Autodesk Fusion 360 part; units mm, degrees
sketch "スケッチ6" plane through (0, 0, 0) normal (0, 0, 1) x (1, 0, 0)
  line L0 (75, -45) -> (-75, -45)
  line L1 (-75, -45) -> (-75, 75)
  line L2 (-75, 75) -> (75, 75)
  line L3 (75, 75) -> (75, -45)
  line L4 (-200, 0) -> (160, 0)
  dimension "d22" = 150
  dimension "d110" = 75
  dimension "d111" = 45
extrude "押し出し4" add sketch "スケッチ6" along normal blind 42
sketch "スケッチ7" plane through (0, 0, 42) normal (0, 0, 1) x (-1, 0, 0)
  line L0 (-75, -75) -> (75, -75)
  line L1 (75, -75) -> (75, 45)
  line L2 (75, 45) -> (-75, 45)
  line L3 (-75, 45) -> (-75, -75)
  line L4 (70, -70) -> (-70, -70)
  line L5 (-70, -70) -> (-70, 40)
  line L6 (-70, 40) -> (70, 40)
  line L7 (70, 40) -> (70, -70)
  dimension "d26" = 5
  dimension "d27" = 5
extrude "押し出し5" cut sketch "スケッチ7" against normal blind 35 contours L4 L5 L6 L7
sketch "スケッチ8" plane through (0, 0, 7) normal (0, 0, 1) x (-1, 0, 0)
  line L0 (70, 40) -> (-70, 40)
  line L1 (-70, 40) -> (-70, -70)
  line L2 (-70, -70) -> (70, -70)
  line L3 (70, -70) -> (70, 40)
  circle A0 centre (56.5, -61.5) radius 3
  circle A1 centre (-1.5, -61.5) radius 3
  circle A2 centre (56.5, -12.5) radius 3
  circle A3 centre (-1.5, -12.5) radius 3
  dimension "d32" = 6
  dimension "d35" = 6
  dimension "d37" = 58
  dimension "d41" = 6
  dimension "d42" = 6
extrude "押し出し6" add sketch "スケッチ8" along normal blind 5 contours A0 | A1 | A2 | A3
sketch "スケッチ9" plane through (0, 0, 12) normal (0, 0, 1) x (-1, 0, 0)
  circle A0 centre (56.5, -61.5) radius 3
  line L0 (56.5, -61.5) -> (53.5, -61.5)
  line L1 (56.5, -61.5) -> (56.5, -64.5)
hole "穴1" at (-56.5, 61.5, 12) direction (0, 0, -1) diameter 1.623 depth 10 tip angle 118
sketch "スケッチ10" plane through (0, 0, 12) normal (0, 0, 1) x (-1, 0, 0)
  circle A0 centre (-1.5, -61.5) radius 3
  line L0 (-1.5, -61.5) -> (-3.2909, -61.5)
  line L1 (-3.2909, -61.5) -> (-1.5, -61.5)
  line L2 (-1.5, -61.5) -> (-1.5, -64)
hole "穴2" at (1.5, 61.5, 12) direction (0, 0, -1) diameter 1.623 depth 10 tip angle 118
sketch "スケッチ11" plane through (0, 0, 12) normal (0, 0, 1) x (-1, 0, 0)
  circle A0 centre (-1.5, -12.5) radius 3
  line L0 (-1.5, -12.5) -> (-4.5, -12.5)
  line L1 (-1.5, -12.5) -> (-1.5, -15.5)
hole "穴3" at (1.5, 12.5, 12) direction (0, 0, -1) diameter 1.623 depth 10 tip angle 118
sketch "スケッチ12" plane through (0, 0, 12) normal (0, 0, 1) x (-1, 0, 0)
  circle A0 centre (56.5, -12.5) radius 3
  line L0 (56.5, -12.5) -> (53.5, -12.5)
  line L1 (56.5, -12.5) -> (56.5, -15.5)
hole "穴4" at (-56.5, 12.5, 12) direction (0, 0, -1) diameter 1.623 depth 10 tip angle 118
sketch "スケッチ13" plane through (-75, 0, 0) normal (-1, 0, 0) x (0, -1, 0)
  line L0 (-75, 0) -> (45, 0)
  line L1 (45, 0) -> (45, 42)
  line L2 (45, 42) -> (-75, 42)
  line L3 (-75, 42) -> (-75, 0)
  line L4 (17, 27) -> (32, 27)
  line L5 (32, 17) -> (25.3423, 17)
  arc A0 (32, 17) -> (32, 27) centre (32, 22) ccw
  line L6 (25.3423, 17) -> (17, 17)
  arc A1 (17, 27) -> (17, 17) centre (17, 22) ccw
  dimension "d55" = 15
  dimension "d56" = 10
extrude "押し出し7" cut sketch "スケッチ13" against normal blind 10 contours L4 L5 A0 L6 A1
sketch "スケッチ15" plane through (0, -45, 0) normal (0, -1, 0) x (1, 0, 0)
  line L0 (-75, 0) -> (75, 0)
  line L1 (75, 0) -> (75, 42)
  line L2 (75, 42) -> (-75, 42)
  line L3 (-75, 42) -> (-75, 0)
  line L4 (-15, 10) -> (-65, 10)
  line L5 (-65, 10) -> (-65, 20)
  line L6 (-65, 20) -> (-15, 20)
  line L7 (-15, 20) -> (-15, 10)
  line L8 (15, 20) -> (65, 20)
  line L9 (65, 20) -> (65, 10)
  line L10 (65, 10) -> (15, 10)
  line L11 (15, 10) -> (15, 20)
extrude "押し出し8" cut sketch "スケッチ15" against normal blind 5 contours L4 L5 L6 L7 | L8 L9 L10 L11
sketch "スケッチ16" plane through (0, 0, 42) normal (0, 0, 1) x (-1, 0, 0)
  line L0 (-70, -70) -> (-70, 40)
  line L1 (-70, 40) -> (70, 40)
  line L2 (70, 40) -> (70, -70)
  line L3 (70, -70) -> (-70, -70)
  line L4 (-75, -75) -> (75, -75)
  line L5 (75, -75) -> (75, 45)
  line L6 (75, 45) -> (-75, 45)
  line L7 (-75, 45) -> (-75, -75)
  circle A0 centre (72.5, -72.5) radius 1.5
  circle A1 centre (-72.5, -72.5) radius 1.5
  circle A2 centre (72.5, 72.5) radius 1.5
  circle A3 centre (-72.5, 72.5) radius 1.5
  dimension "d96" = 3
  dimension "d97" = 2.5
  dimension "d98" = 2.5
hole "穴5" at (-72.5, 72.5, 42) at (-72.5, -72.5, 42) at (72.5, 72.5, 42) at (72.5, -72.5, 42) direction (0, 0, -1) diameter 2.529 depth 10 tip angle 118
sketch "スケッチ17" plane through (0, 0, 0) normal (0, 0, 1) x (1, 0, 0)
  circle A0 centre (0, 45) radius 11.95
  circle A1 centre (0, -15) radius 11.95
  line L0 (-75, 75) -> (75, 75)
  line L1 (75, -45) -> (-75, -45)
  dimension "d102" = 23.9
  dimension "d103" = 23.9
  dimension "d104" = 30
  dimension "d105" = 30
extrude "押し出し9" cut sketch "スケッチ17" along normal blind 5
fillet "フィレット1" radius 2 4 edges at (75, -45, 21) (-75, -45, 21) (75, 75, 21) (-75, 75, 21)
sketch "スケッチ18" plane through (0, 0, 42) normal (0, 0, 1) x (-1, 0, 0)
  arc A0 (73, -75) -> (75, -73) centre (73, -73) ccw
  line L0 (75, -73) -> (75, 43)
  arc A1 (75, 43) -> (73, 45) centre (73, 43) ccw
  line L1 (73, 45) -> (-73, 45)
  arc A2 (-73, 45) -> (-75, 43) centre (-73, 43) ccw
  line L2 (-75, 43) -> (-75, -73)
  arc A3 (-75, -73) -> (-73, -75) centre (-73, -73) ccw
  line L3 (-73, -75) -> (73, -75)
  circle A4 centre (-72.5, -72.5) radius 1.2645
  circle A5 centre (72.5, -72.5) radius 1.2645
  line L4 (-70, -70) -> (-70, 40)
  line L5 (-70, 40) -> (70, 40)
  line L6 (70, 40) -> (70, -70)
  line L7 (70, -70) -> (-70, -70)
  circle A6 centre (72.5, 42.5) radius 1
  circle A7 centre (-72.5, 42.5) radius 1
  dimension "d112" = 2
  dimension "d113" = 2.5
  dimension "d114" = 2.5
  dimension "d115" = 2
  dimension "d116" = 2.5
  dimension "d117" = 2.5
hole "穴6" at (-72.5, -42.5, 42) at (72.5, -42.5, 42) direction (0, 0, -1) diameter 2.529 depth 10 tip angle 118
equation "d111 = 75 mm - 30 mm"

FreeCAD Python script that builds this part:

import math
import FreeCAD as App
import Part
import Sketcher
from FreeCAD import Vector
Q = App.Units.Quantity


def edges_at(feature, points):
    """Names of the edges that pass closest to the given points."""
    edges = feature.Shape.Edges
    near = lambda p: min(range(len(edges)), key=lambda i: edges[i].distToShape(Part.Vertex(*p))[0])
    return sorted({f"Edge{near(p) + 1}" for p in points})

doc = App.newDocument("Part")
body = doc.addObject("PartDesign::Body", "Body")

# Sketch on XY plane
sketch1 = body.newObject("Sketcher::SketchObject", "Sketch")
sketch1.AttachmentSupport = (doc.getObject("XY_Plane"), [""])
sketch1.MapMode = "FlatFace"
sketch1.addGeometry([
    Part.LineSegment(Vector(-75, -45, 0), Vector(75, -45, 0)),
    Part.LineSegment(Vector(75, -45, 0), Vector(75, 75, 0)),
    Part.LineSegment(Vector(75, 75, 0), Vector(-75, 75, 0)),
    Part.LineSegment(Vector(-75, 75, 0), Vector(-75, -45, 0)),
], False)
sketch1.addConstraint([
    Sketcher.Constraint("Coincident", 0, 2, 1, 1),
    Sketcher.Constraint("Coincident", 1, 2, 2, 1),
    Sketcher.Constraint("Coincident", 2, 2, 3, 1),
    Sketcher.Constraint("Coincident", 3, 2, 0, 1),
    Sketcher.Constraint("Horizontal", 0),
    Sketcher.Constraint("Vertical", 1),
    Sketcher.Constraint("Horizontal", 2),
    Sketcher.Constraint("Vertical", 3),
    Sketcher.Constraint("DistanceX", 0, 1, 0, 2, Q("150 mm")),
    Sketcher.Constraint("DistanceX", -1, 1, 0, 2, Q("75 mm")),
    Sketcher.Constraint("DistanceY", 0, 2, -1, 1, Q("45 mm")),
    Sketcher.Constraint("DistanceY", -1, 1, 1, 2, Q("75 mm")),
])
pad1 = body.newObject("PartDesign::Pad", "Pad")
pad1.Profile = sketch1
pad1.Length = 42

# Sketch on XY plane
sketch2 = body.newObject("Sketcher::SketchObject", "Sketch001")
sketch2.AttachmentSupport = (doc.getObject("XY_Plane"), [""])
sketch2.MapMode = "FlatFace"
sketch2.AttachmentOffset = App.Placement(Vector(0, 0, 42), App.Rotation())
sketch2.addGeometry([
    Part.LineSegment(Vector(70, 70, 0), Vector(-70, 70, 0)),
    Part.LineSegment(Vector(-70, 70, 0), Vector(-70, -40, 0)),
    Part.LineSegment(Vector(-70, -40, 0), Vector(70, -40, 0)),
    Part.LineSegment(Vector(70, -40, 0), Vector(70, 70, 0)),
], False)
sketch2.addConstraint([
    Sketcher.Constraint("Coincident", 0, 2, 1, 1),
    Sketcher.Constraint("Coincident", 1, 2, 2, 1),
    Sketcher.Constraint("Coincident", 2, 2, 3, 1),
    Sketcher.Constraint("Coincident", 3, 2, 0, 1),
    Sketcher.Constraint("Horizontal", 0),
    Sketcher.Constraint("Vertical", 1),
    Sketcher.Constraint("Horizontal", 2),
    Sketcher.Constraint("Vertical", 3),
    Sketcher.Constraint("DistanceX", 0, 2, 0, 1, Q("140 mm")),
    Sketcher.Constraint("DistanceY", 1, 2, 1, 1, Q("110 mm")),
    Sketcher.Constraint("DistanceX", 0, 2, -1, 1, Q("70 mm")),
    Sketcher.Constraint("DistanceY", -1, 1, 0, 2, Q("70 mm")),
])
pocket1 = body.newObject("PartDesign::Pocket", "Pocket")
pocket1.Profile = sketch2
pocket1.Length = 35

# Sketch on XY plane
sketch3 = body.newObject("Sketcher::SketchObject", "Sketch002")
sketch3.AttachmentSupport = (doc.getObject("XY_Plane"), [""])
sketch3.MapMode = "FlatFace"
sketch3.AttachmentOffset = App.Placement(Vector(0, 0, 7), App.Rotation())
sketch3.addGeometry([
    Part.Circle(Vector(-56.5, 61.5, 0), Vector(0, 0, 1), 3),
    Part.Circle(Vector(1.5, 61.5, 0), Vector(0, 0, 1), 3),
    Part.Circle(Vector(-56.5, 12.5, 0), Vector(0, 0, 1), 3),
    Part.Circle(Vector(1.5, 12.5, 0), Vector(0, 0, 1), 3),
], False)
sketch3.addConstraint([
    Sketcher.Constraint("Equal", 0, 1),
    Sketcher.Constraint("Equal", 1, 2),
    Sketcher.Constraint("Equal", 2, 3),
    Sketcher.Constraint("Horizontal", 0, 3, 1, 3),
    Sketcher.Constraint("Horizontal", 2, 3, 3, 3),
    Sketcher.Constraint("Vertical", 0, 3, 2, 3),
    Sketcher.Constraint("Vertical", 1, 3, 3, 3),
    Sketcher.Constraint("Diameter", 0, Q("6 mm")),
    Sketcher.Constraint("DistanceX", 0, 3, 1, 3, Q("58 mm")),
    Sketcher.Constraint("DistanceY", 2, 3, 0, 3, Q("49 mm")),
    Sketcher.Constraint("DistanceX", 0, 3, -1, 1, Q("56.5 mm")),
    Sketcher.Constraint("DistanceY", -1, 1, 0, 3, Q("61.5 mm")),
])
pad2 = body.newObject("PartDesign::Pad", "Pad001")
pad2.Profile = sketch3
pad2.Length = 5

# Sketch on XY plane
sketch4 = body.newObject("Sketcher::SketchObject", "Sketch003")
sketch4.AttachmentSupport = (doc.getObject("XY_Plane"), [""])
sketch4.MapMode = "FlatFace"
sketch4.AttachmentOffset = App.Placement(Vector(0, 0, 12), App.Rotation())
sketch4.addGeometry(Part.Circle(Vector(-56.5, 61.5, 0), Vector(0, 0, 1), 0.8115), False)
sketch4.addConstraint([
    Sketcher.Constraint("Diameter", 0, Q("1.623 mm")),
    Sketcher.Constraint("DistanceX", 0, 3, -1, 1, Q("56.5 mm")),
    Sketcher.Constraint("DistanceY", -1, 1, 0, 3, Q("61.5 mm")),
])
doc.recompute()
hole = body.newObject("PartDesign::Hole", "Hole")
hole.Profile = sketch4
hole.ThreadType = "None"
hole.Diameter = 1.623
hole.DepthType = "Dimension"
hole.Depth = 10
hole.DrillPoint = "Angled"
hole.DrillPointAngle = 118

# Sketch on XY plane
sketch5 = body.newObject("Sketcher::SketchObject", "Sketch004")
sketch5.AttachmentSupport = (doc.getObject("XY_Plane"), [""])
sketch5.MapMode = "FlatFace"
sketch5.AttachmentOffset = App.Placement(Vector(0, 0, 12), App.Rotation())
sketch5.addGeometry(Part.Circle(Vector(1.5, 61.5, 0), Vector(0, 0, 1), 0.8115), False)
sketch5.addConstraint([
    Sketcher.Constraint("Diameter", 0, Q("1.623 mm")),
    Sketcher.Constraint("DistanceX", -1, 1, 0, 3, Q("1.5 mm")),
    Sketcher.Constraint("DistanceY", -1, 1, 0, 3, Q("61.5 mm")),
])
doc.recompute()
hole2 = body.newObject("PartDesign::Hole", "Hole001")
hole2.Profile = sketch5
hole2.ThreadType = "None"
hole2.Diameter = 1.623
hole2.DepthType = "Dimension"
hole2.Depth = 10
hole2.DrillPoint = "Angled"
hole2.DrillPointAngle = 118

# Sketch on XY plane
sketch6 = body.newObject("Sketcher::SketchObject", "Sketch005")
sketch6.AttachmentSupport = (doc.getObject("XY_Plane"), [""])
sketch6.MapMode = "FlatFace"
sketch6.AttachmentOffset = App.Placement(Vector(0, 0, 12), App.Rotation())
sketch6.addGeometry(Part.Circle(Vector(1.5, 12.5, 0), Vector(0, 0, 1), 0.8115), False)
sketch6.addConstraint([
    Sketcher.Constraint("Diameter", 0, Q("1.623 mm")),
    Sketcher.Constraint("DistanceX", -1, 1, 0, 3, Q("1.5 mm")),
    Sketcher.Constraint("DistanceY", -1, 1, 0, 3, Q("12.5 mm")),
])
doc.recompute()
hole3 = body.newObject("PartDesign::Hole", "Hole002")
hole3.Profile = sketch6
hole3.ThreadType = "None"
hole3.Diameter = 1.623
hole3.DepthType = "Dimension"
hole3.Depth = 10
hole3.DrillPoint = "Angled"
hole3.DrillPointAngle = 118

# Sketch on XY plane
sketch7 = body.newObject("Sketcher::SketchObject", "Sketch006")
sketch7.AttachmentSupport = (doc.getObject("XY_Plane"), [""])
sketch7.MapMode = "FlatFace"
sketch7.AttachmentOffset = App.Placement(Vector(0, 0, 12), App.Rotation())
sketch7.addGeometry(Part.Circle(Vector(-56.5, 12.5, 0), Vector(0, 0, 1), 0.8115), False)
sketch7.addConstraint([
    Sketcher.Constraint("Diameter", 0, Q("1.623 mm")),
    Sketcher.Constraint("DistanceX", 0, 3, -1, 1, Q("56.5 mm")),
    Sketcher.Constraint("DistanceY", -1, 1, 0, 3, Q("12.5 mm")),
])
doc.recompute()
hole4 = body.newObject("PartDesign::Hole", "Hole003")
hole4.Profile = sketch7
hole4.ThreadType = "None"
hole4.Diameter = 1.623
hole4.DepthType = "Dimension"
hole4.Depth = 10
hole4.DrillPoint = "Angled"
hole4.DrillPointAngle = 118

# Sketch on YZ plane
sketch8 = body.newObject("Sketcher::SketchObject", "Sketch007")
sketch8.AttachmentSupport = (doc.getObject("YZ_Plane"), [""])
sketch8.MapMode = "FlatFace"
sketch8.AttachmentOffset = App.Placement(Vector(0, 0, -75), App.Rotation())
sketch8.addGeometry([
    Part.LineSegment(Vector(-32, 27, 0), Vector(-17, 27, 0)),
    Part.ArcOfCircle(Part.Circle(Vector(-17, 22, 0), Vector(0, 0, 1), 5), math.radians(-90), math.radians(90)),
    Part.LineSegment(Vector(-17, 17, 0), Vector(-32, 17, 0)),
    Part.ArcOfCircle(Part.Circle(Vector(-32, 22, 0), Vector(0, 0, 1), 5), math.radians(90), math.radians(270)),
], False)
sketch8.addConstraint([
    Sketcher.Constraint("Tangent", 0, 2, 1, 2),
    Sketcher.Constraint("Tangent", 1, 1, 2, 1),
    Sketcher.Constraint("Tangent", 2, 2, 3, 2),
    Sketcher.Constraint("Tangent", 3, 1, 0, 1),
    Sketcher.Constraint("Horizontal", 0),
    Sketcher.Constraint("Horizontal", 2),
    Sketcher.Constraint("Radius", 1, Q("5 mm")),
    Sketcher.Constraint("DistanceX", 0, 1, 0, 2, Q("15 mm")),
    Sketcher.Constraint("DistanceX", 1, 3, -1, 1, Q("17 mm")),
    Sketcher.Constraint("DistanceY", -1, 1, 1, 3, Q("22 mm")),
])
pocket2 = body.newObject("PartDesign::Pocket", "Pocket001")
pocket2.Profile = sketch8
pocket2.Length = 10
pocket2.Reversed = True

# Sketch on XZ plane
sketch9 = body.newObject("Sketcher::SketchObject", "Sketch008")
sketch9.AttachmentSupport = (doc.getObject("XZ_Plane"), [""])
sketch9.MapMode = "FlatFace"
sketch9.AttachmentOffset = App.Placement(Vector(0, 0, 45), App.Rotation())
sketch9.addGeometry([
    Part.LineSegment(Vector(-65, 10, 0), Vector(-15, 10, 0)),  # 0
    Part.LineSegment(Vector(-15, 10, 0), Vector(-15, 20, 0)),  # 1
    Part.LineSegment(Vector(-15, 20, 0), Vector(-65, 20, 0)),  # 2
    Part.LineSegment(Vector(-65, 20, 0), Vector(-65, 10, 0)),  # 3
    Part.LineSegment(Vector(65, 20, 0), Vector(15, 20, 0)),  # 4
    Part.LineSegment(Vector(15, 20, 0), Vector(15, 10, 0)),  # 5
    Part.LineSegment(Vector(15, 10, 0), Vector(65, 10, 0)),  # 6
    Part.LineSegment(Vector(65, 10, 0), Vector(65, 20, 0)),  # 7
], False)
sketch9.addConstraint([
    Sketcher.Constraint("Coincident", 0, 2, 1, 1),
    Sketcher.Constraint("Coincident", 1, 2, 2, 1),
    Sketcher.Constraint("Coincident", 2, 2, 3, 1),
    Sketcher.Constraint("Coincident", 3, 2, 0, 1),
    Sketcher.Constraint("Coincident", 4, 2, 5, 1),
    Sketcher.Constraint("Coincident", 5, 2, 6, 1),
    Sketcher.Constraint("Coincident", 6, 2, 7, 1),
    Sketcher.Constraint("Coincident", 7, 2, 4, 1),
    Sketcher.Constraint("Horizontal", 0),
    Sketcher.Constraint("Vertical", 1),
    Sketcher.Constraint("Horizontal", 2),
    Sketcher.Constraint("Vertical", 3),
    Sketcher.Constraint("Horizontal", 4),
    Sketcher.Constraint("Vertical", 5),
    Sketcher.Constraint("Horizontal", 6),
    Sketcher.Constraint("Vertical", 7),
    Sketcher.Constraint("Symmetric", 1, 2, 4, 2, -2),
    Sketcher.Constraint("Symmetric", 3, 2, 6, 2, -2),
    Sketcher.Constraint("DistanceX", 0, 1, 0, 2, Q("50 mm")),
    Sketcher.Constraint("DistanceY", 1, 1, 1, 2, Q("10 mm")),
    Sketcher.Constraint("DistanceX", 0, 2, -1, 1, Q("15 mm")),
    Sketcher.Constraint("DistanceY", -1, 1, 0, 2, Q("10 mm")),
])
pocket3 = body.newObject("PartDesign::Pocket", "Pocket002")
pocket3.Profile = sketch9
pocket3.Length = 5

# Sketch on XY plane
sketch10 = body.newObject("Sketcher::SketchObject", "Sketch009")
sketch10.AttachmentSupport = (doc.getObject("XY_Plane"), [""])
sketch10.MapMode = "FlatFace"
sketch10.AttachmentOffset = App.Placement(Vector(0, 0, 42), App.Rotation())
sketch10.addGeometry([
    Part.Circle(Vector(-72.5, 72.5, 0), Vector(0, 0, 1), 1.2645),
    Part.Circle(Vector(-72.5, -72.5, 0), Vector(0, 0, 1), 1.2645),
    Part.Circle(Vector(72.5, 72.5, 0), Vector(0, 0, 1), 1.2645),
    Part.Circle(Vector(72.5, -72.5, 0), Vector(0, 0, 1), 1.2645),
], False)
sketch10.addConstraint([
    Sketcher.Constraint("Equal", 0, 1),
    Sketcher.Constraint("Equal", 1, 2),
    Sketcher.Constraint("Equal", 2, 3),
    Sketcher.Constraint("Symmetric", 1, 3, 2, 3, -1, 1),
    Sketcher.Constraint("Symmetric", 0, 3, 3, 3, -1, 1),
    Sketcher.Constraint("Symmetric", 0, 3, 2, 3, -2),
    Sketcher.Constraint("Diameter", 0, Q("2.529 mm")),
    Sketcher.Constraint("DistanceY", 1, 3, 0, 3, Q("145 mm")),
    Sketcher.Constraint("DistanceX", 0, 3, 2, 3, Q("145 mm")),
])
doc.recompute()
hole5 = body.newObject("PartDesign::Hole", "Hole004")
hole5.Profile = sketch10
hole5.ThreadType = "None"
hole5.Diameter = 2.529
hole5.DepthType = "Dimension"
hole5.Depth = 10
hole5.DrillPoint = "Angled"
hole5.DrillPointAngle = 118

# Sketch on XY plane
sketch11 = body.newObject("Sketcher::SketchObject", "Sketch010")
sketch11.AttachmentSupport = (doc.getObject("XY_Plane"), [""])
sketch11.MapMode = "FlatFace"
sketch11.addGeometry([
    Part.Circle(Vector(0, 45, 0), Vector(0, 0, 1), 11.95),
    Part.Circle(Vector(0, -15, 0), Vector(0, 0, 1), 11.95),
], False)
sketch11.addConstraint([
    Sketcher.Constraint("Equal", 0, 1),
    Sketcher.Constraint("PointOnObject", 0, 3, -2),
    Sketcher.Constraint("PointOnObject", 1, 3, -2),
    Sketcher.Constraint("Diameter", 0, Q("23.9 mm")),
    Sketcher.Constraint("DistanceY", -1, 1, 0, 3, Q("45 mm")),
    Sketcher.Constraint("DistanceY", 1, 3, -1, 1, Q("15 mm")),
])
pocket4 = body.newObject("PartDesign::Pocket", "Pocket003")
pocket4.Profile = sketch11
pocket4.Length = 5
pocket4.Reversed = True
doc.recompute()

fillet = body.newObject("PartDesign::Fillet", "Fillet")
fillet.Base = (pocket4, edges_at(pocket4, [
    (75, -45, 21),
    (-75, -45, 21),
    (75, 75, 21),
    (-75, 75, 21),
]))
fillet.Radius = 2

# Sketch on XY plane
sketch12 = body.newObject("Sketcher::SketchObject", "Sketch011")
sketch12.AttachmentSupport = (doc.getObject("XY_Plane"), [""])
sketch12.MapMode = "FlatFace"
sketch12.AttachmentOffset = App.Placement(Vector(0, 0, 42), App.Rotation())
sketch12.addGeometry([
    Part.Circle(Vector(-72.5, -42.5, 0), Vector(0, 0, 1), 1.2645),
    Part.Circle(Vector(72.5, -42.5, 0), Vector(0, 0, 1), 1.2645),
], False)
sketch12.addConstraint([
    Sketcher.Constraint("Equal", 0, 1),
    Sketcher.Constraint("Symmetric", 0, 3, 1, 3, -2),
    Sketcher.Constraint("Diameter", 0, Q("2.529 mm")),
    Sketcher.Constraint("DistanceX", 0, 3, 1, 3, Q("145 mm")),
    Sketcher.Constraint("DistanceY", 0, 3, -1, 1, Q("42.5 mm")),
])
doc.recompute()
hole6 = body.newObject("PartDesign::Hole", "Hole005")
hole6.Profile = sketch12
hole6.ThreadType = "None"
hole6.Diameter = 2.529
hole6.DepthType = "Dimension"
hole6.Depth = 10
hole6.DrillPoint = "Angled"
hole6.DrillPointAngle = 118

doc.recompute()
